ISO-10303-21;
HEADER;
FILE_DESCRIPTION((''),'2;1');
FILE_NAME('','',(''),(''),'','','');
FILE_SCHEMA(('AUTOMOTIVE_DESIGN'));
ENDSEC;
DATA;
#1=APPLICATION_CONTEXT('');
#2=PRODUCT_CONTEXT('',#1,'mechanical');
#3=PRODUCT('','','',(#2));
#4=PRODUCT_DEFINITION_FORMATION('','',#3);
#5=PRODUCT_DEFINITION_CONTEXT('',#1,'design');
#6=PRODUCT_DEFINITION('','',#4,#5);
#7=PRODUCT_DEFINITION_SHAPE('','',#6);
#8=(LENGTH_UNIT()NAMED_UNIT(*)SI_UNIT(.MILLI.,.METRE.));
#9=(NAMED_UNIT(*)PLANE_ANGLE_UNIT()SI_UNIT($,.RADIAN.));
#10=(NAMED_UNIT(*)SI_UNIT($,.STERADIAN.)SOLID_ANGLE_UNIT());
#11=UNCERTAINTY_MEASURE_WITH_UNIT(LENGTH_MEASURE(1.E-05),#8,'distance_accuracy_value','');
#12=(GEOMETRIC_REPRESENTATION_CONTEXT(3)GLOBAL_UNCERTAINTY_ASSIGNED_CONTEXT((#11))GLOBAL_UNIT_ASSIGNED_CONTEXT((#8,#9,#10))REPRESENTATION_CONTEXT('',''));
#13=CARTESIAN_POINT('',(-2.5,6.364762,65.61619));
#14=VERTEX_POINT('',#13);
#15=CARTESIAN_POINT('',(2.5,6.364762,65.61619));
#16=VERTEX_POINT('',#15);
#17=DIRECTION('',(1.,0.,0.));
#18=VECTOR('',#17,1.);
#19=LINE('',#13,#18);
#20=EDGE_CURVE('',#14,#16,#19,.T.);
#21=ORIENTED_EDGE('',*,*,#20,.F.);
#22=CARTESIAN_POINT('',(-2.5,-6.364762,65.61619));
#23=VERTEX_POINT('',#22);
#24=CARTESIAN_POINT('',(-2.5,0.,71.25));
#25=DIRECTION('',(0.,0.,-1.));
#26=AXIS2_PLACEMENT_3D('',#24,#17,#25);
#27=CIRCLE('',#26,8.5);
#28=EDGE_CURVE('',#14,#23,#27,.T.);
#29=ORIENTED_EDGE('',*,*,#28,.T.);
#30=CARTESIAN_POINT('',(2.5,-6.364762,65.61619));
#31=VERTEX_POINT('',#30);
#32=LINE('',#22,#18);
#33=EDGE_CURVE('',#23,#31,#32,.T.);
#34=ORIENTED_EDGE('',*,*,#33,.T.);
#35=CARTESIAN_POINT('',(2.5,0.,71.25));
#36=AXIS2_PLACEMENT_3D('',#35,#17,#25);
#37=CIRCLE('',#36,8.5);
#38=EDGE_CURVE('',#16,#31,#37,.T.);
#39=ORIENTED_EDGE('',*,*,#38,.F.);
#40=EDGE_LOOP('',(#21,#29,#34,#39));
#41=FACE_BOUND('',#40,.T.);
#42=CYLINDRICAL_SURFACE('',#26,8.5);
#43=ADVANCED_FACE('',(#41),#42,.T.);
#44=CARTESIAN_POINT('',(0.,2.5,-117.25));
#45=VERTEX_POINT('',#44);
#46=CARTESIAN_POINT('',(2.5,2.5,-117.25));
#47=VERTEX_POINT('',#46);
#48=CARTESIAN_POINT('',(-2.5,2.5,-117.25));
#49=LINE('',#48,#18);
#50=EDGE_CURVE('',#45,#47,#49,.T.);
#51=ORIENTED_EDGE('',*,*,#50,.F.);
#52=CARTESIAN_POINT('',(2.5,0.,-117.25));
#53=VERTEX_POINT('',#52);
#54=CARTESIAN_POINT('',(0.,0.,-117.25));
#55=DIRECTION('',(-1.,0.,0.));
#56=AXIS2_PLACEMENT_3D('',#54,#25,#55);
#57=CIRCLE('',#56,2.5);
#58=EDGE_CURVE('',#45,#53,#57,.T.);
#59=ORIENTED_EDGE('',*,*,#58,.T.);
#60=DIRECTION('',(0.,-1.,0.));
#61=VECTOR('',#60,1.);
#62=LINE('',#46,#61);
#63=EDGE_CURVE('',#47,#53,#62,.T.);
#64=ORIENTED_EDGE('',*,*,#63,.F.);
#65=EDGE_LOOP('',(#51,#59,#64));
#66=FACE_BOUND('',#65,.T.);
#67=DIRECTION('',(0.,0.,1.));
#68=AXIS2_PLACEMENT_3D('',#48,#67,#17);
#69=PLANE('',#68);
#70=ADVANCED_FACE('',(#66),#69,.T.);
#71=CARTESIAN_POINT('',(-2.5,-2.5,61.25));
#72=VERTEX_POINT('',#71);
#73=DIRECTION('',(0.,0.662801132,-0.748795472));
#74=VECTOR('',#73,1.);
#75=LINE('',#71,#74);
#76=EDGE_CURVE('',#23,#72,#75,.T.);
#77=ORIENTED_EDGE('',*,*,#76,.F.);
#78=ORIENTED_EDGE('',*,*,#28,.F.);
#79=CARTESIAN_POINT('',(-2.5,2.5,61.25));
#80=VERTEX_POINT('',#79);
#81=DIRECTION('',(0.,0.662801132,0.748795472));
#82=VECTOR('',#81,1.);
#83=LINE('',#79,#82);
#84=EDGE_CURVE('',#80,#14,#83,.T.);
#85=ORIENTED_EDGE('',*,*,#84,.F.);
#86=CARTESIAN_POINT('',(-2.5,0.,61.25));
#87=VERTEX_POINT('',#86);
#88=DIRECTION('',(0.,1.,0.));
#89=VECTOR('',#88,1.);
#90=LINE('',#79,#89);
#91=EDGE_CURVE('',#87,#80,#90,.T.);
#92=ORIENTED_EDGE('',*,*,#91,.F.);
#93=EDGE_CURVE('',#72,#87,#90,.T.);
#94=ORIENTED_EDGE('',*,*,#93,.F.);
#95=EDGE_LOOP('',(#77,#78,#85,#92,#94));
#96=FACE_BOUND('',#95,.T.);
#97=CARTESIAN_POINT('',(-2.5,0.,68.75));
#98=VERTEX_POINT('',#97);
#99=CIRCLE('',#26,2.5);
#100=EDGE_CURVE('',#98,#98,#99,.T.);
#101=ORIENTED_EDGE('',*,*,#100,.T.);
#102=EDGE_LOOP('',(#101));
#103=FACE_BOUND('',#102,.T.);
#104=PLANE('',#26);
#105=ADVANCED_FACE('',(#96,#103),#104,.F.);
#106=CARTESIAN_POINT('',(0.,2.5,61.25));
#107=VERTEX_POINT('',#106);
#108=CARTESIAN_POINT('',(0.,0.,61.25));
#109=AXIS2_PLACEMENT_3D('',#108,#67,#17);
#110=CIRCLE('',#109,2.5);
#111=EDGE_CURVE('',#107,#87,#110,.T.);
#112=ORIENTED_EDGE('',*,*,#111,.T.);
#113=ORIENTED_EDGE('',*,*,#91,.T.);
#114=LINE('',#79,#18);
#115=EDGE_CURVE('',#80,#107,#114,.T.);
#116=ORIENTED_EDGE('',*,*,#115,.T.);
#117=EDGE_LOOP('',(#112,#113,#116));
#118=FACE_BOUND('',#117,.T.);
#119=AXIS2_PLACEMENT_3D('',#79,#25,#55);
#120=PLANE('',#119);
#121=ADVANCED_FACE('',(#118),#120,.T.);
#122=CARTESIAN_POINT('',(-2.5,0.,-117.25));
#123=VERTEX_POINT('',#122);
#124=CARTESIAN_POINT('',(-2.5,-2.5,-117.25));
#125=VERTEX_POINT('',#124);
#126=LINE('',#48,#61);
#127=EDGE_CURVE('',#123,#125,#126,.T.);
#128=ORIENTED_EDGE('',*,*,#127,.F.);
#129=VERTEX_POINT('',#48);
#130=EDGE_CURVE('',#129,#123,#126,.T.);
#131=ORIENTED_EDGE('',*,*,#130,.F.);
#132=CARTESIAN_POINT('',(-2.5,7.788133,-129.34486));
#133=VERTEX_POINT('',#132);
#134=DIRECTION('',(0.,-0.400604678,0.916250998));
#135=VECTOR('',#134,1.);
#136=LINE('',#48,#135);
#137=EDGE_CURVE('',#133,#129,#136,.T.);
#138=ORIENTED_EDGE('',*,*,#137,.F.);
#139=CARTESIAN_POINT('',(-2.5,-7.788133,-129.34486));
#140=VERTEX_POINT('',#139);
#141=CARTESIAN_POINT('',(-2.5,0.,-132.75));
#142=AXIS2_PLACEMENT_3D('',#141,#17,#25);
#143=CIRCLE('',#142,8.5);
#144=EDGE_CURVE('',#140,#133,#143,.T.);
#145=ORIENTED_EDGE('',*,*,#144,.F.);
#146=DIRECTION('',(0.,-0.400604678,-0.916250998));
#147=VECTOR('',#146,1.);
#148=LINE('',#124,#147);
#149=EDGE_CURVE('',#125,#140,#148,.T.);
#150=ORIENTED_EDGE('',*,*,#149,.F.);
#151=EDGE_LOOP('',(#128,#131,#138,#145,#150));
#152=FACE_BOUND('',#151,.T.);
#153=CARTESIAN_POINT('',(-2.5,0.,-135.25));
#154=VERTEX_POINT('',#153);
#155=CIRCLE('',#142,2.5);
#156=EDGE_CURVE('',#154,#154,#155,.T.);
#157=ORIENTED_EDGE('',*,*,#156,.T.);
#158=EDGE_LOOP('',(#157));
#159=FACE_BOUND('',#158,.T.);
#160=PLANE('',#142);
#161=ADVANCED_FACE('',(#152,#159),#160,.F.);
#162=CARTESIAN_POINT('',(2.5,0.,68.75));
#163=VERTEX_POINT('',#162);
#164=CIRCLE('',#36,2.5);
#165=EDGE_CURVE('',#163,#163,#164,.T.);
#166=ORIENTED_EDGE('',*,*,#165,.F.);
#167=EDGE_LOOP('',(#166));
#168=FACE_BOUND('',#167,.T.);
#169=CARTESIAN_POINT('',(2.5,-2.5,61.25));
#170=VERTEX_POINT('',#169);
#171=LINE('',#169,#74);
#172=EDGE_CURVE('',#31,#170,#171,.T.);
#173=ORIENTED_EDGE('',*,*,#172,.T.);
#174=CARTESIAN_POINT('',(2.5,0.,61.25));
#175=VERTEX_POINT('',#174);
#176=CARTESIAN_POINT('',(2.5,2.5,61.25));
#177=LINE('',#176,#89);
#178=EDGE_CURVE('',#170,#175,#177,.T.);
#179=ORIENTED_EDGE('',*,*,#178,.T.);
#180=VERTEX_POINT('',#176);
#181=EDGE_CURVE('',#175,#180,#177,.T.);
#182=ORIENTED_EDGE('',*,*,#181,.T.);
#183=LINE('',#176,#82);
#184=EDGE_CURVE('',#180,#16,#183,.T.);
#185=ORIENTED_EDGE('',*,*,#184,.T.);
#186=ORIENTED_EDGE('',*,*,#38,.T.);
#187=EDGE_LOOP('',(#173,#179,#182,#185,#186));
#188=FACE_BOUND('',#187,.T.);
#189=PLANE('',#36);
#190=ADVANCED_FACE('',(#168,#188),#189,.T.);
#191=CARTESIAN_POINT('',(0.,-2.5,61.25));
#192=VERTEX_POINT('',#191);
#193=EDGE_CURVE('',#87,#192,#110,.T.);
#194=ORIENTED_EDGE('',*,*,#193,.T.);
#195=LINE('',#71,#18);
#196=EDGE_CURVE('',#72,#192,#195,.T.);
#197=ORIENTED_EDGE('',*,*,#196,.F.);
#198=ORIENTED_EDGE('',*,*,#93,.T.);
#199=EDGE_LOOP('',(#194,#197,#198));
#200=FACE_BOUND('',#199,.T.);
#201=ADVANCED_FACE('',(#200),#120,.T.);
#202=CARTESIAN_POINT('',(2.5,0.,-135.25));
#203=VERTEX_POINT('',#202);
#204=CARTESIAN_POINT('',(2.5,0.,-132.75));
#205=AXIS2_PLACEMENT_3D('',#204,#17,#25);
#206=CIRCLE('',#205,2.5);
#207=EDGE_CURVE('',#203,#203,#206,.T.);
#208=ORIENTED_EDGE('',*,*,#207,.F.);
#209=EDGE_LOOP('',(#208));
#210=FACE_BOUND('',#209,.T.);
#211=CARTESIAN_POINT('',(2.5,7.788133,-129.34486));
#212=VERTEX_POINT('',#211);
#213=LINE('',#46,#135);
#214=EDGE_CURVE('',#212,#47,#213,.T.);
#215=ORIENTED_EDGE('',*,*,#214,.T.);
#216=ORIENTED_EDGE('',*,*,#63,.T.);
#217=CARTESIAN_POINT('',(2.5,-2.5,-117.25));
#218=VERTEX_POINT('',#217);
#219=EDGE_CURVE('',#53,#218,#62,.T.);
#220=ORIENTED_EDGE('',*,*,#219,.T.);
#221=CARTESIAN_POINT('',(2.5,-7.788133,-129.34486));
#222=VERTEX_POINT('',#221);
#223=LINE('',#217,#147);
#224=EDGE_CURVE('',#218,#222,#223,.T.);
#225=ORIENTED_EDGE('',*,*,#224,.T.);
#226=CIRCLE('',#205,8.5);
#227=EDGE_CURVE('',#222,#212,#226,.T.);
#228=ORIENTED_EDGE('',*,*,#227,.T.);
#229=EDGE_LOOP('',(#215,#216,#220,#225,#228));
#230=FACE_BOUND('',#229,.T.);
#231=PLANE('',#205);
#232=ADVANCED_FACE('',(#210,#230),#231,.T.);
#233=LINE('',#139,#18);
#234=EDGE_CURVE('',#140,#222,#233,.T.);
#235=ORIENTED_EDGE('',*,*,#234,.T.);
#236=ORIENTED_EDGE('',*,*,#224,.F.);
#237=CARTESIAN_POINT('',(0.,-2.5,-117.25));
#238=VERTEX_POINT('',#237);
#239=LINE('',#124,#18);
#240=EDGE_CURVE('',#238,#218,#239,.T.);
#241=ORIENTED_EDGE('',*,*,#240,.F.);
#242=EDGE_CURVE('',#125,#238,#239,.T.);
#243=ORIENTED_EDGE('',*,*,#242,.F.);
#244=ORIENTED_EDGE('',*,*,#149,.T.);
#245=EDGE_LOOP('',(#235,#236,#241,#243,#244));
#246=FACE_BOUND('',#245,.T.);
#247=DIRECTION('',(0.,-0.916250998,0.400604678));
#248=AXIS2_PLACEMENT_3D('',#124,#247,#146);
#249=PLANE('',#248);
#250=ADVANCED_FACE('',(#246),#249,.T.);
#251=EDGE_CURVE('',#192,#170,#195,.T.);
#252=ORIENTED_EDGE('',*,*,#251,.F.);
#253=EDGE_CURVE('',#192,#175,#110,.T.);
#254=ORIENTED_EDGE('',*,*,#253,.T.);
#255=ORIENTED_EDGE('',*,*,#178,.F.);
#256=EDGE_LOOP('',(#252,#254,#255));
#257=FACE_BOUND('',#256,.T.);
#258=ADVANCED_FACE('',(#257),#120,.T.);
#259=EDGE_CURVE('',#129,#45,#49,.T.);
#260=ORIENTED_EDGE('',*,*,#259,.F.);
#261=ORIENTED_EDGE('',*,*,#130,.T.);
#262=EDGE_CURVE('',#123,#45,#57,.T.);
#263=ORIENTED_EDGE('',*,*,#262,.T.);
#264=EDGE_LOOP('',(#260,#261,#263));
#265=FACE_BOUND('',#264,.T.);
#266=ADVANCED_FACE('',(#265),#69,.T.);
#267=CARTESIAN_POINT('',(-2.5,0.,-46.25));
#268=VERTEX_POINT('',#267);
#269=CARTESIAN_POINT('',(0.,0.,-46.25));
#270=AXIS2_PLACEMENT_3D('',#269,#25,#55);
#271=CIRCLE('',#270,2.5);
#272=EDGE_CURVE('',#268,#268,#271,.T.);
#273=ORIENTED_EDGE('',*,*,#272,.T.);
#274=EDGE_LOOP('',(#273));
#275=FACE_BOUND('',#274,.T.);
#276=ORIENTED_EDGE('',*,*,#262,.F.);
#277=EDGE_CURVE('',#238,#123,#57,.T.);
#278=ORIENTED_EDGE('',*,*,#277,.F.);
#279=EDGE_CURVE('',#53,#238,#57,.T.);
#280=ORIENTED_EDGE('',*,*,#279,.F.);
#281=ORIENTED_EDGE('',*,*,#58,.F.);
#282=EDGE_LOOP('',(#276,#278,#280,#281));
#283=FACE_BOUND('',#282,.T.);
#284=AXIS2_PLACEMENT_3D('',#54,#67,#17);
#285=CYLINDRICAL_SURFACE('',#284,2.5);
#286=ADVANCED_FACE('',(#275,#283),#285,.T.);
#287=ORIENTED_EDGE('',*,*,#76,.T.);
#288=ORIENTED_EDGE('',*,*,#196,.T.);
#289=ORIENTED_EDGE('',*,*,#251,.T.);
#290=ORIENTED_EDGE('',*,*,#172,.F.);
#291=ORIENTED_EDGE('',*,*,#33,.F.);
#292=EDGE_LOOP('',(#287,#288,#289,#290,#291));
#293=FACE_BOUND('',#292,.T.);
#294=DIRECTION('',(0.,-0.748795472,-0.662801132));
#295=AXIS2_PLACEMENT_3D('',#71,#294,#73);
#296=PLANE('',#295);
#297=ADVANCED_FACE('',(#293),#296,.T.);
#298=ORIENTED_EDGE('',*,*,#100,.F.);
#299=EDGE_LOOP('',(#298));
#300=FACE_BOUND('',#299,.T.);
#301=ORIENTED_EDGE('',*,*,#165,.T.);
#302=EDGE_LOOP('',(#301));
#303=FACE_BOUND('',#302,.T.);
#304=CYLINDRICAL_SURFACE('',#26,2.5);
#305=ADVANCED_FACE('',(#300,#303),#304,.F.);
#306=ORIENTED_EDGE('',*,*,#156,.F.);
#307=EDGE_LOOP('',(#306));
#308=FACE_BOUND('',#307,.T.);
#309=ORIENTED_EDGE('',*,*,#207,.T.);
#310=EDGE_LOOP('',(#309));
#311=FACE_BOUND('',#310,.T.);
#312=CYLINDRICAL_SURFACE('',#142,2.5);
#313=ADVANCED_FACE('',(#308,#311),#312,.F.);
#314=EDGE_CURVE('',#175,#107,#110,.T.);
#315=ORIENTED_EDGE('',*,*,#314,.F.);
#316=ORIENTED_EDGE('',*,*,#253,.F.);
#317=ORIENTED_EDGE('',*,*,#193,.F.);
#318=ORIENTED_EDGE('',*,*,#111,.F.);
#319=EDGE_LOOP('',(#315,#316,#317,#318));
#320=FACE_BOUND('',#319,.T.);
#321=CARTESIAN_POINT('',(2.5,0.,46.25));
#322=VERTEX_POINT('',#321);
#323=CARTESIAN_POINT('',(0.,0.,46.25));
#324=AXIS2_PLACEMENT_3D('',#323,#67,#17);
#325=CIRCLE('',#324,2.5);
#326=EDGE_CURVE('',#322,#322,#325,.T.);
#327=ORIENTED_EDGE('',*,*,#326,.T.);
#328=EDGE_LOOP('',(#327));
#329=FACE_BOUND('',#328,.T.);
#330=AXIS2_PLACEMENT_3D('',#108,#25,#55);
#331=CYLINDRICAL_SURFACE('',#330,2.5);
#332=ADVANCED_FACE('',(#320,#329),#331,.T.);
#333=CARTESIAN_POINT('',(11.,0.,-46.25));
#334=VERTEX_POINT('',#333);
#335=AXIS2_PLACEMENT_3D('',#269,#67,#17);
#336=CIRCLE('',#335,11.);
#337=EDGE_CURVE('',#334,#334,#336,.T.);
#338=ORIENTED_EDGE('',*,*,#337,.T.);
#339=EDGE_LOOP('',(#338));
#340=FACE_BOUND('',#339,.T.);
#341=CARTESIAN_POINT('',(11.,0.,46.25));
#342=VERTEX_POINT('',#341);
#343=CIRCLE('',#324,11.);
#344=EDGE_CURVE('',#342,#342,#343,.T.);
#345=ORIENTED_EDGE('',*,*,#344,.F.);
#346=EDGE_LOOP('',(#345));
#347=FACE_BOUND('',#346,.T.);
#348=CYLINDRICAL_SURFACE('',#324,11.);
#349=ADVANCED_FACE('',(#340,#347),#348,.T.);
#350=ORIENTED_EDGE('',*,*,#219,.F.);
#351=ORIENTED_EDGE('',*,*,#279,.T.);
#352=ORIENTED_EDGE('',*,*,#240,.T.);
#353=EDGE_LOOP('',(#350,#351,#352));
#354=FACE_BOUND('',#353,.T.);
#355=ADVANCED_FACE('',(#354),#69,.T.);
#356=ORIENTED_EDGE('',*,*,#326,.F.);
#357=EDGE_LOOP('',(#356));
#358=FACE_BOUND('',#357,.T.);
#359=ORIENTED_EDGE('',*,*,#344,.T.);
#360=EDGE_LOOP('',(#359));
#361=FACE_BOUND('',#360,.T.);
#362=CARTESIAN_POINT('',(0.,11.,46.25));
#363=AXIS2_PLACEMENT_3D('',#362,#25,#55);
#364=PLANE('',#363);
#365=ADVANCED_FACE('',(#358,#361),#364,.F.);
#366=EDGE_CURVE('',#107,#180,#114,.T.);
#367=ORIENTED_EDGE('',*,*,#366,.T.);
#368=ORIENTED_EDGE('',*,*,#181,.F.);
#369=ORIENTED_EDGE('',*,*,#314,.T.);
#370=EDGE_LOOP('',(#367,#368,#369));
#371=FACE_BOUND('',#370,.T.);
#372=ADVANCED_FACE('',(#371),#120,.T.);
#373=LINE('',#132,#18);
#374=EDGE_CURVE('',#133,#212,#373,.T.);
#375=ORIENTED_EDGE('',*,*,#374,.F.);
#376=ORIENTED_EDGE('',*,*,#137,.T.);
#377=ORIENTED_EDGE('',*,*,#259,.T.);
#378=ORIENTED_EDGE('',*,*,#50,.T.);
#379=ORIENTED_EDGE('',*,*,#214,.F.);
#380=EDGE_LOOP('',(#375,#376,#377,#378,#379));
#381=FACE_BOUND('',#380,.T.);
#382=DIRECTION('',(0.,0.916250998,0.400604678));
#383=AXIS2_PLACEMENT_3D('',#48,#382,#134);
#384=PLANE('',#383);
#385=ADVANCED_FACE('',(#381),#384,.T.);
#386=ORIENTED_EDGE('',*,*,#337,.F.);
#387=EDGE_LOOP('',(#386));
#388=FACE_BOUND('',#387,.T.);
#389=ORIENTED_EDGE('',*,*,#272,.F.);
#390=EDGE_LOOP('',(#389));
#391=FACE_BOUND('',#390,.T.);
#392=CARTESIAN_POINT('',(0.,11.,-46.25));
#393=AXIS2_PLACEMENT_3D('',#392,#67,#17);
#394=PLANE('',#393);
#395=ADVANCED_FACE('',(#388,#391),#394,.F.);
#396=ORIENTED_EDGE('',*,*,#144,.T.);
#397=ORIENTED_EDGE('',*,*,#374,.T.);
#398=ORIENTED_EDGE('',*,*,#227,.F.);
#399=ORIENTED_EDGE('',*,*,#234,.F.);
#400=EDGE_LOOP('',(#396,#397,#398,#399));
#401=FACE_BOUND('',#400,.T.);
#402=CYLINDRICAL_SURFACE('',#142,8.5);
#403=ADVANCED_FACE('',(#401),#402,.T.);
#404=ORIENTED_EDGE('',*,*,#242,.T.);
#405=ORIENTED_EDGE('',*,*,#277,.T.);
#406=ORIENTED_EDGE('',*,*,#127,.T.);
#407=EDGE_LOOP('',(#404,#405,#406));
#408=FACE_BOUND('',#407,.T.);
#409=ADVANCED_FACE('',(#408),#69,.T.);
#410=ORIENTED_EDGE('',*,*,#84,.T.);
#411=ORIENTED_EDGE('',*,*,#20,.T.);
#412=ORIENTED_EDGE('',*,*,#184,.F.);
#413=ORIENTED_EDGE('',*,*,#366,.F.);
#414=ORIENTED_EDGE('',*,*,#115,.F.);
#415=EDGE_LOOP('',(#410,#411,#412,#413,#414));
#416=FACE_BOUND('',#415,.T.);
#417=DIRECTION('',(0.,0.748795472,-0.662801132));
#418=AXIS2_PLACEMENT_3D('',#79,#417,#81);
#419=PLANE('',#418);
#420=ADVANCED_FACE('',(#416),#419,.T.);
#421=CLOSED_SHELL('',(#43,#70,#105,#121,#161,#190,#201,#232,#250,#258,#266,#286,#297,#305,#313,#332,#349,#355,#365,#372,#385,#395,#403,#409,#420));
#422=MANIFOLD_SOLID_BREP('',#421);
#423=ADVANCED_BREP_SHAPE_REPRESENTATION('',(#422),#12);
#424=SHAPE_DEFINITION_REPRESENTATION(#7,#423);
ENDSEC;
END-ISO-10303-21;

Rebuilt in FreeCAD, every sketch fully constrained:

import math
import FreeCAD as App
import Part
import Sketcher

doc = App.newDocument("Part")
body = doc.addObject("PartDesign::Body", "Body")

# Sketch on YZ plane
sketch1 = doc.addObject("Sketcher::SketchObject", "Sketch")
body.addObject(sketch1)
sketch1.AttachmentSupport = (doc.YZ_Plane, [""])
sketch1.MapMode = "FlatFace"
sketch1.addGeometry([
    Part.LineSegment(App.Vector(11, 46, 0), App.Vector(0, 46, 0)),
    Part.LineSegment(App.Vector(0, 46, 0), App.Vector(0, -46, 0)),
    Part.LineSegment(App.Vector(0, -46, 0), App.Vector(11, -46, 0)),
    Part.LineSegment(App.Vector(11, -46, 0), App.Vector(11, 46, 0)),
], False)
sketch1.addConstraint([
    Sketcher.Constraint("Coincident", 0, 2, 1, 1),
    Sketcher.Constraint("Coincident", 1, 2, 2, 1),
    Sketcher.Constraint("Coincident", 2, 2, 3, 1),
    Sketcher.Constraint("Coincident", 3, 2, 0, 1),
    Sketcher.Constraint("Horizontal", 0),
    Sketcher.Constraint("Vertical", 1),
    Sketcher.Constraint("Horizontal", 2),
    Sketcher.Constraint("Vertical", 3),
    Sketcher.Constraint("Symmetric", 0, 2, 1, 2, -1, 1),
    Sketcher.Constraint("DistanceX", 0, 2, 0, 1, 11.0),
    Sketcher.Constraint("DistanceY", 1, 2, 1, 1, 92.5),
])
revolution = doc.addObject("PartDesign::Revolution", "Revolution")
body.addObject(revolution)
revolution.Profile = sketch1
revolution.ReferenceAxis = (sketch1, ["V_Axis"])
revolution.Angle = 360

# Sketch on XY plane
sketch2 = doc.addObject("Sketcher::SketchObject", "Sketch001")
body.addObject(sketch2)
sketch2.AttachmentSupport = (doc.XY_Plane, [""])
sketch2.MapMode = "FlatFace"
sketch2.AttachmentOffset = App.Placement(App.Vector(0, 0, 46.25), App.Rotation())
sketch2.addGeometry(Part.Circle(App.Vector(0, 0, 0), App.Vector(0, 0, 1), 2.5), False)
sketch2.addConstraint([
    Sketcher.Constraint("Coincident", 0, 3, -1, 1),
    Sketcher.Constraint("Diameter", 0, 5.0),
])
pad1 = doc.addObject("PartDesign::Pad", "Pad")
body.addObject(pad1)
pad1.Profile = sketch2
pad1.Length = 15

# Sketch on YZ plane
sketch3 = doc.addObject("Sketcher::SketchObject", "Sketch002")
body.addObject(sketch3)
sketch3.AttachmentSupport = (doc.YZ_Plane, [""])
sketch3.MapMode = "FlatFace"
sketch3.addGeometry([
    Part.LineSegment(App.Vector(2.5, 61.2, 0), App.Vector(6.4, 65.6, 0)),  # 0
    Part.ArcOfCircle(Part.Circle(App.Vector(0, 71.2, 0), App.Vector(0, 0, 1), 8.5), math.radians(-42), math.radians(222)),  # 1
    Part.LineSegment(App.Vector(-6.4, 65.6, 0), App.Vector(-2.5, 61.2, 0)),  # 2
    Part.LineSegment(App.Vector(-2.5, 61.2, 0), App.Vector(2.5, 61.2, 0)),  # 3
    Part.Circle(App.Vector(0, 71.2, 0), App.Vector(0, 0, 1), 2.5),  # 4
], False)
sketch3.addConstraint([
    Sketcher.Constraint("Tangent", 0, 2, 1, 1),
    Sketcher.Constraint("Tangent", 1, 2, 2, 1),
    Sketcher.Constraint("Coincident", 2, 2, 3, 1),
    Sketcher.Constraint("Coincident", 3, 2, 0, 1),
    Sketcher.Constraint("Horizontal", 3),
    Sketcher.Constraint("Coincident", 4, 3, 1, 3),
    Sketcher.Constraint("Symmetric", 0, 2, 1, 2, -2),
    Sketcher.Constraint("Diameter", 4, 5.0),
    Sketcher.Constraint("Radius", 1, 8.5),
    Sketcher.Constraint("DistanceX", 3, 1, 3, 2, 5.0),
    Sketcher.Constraint("DistanceY", 2, 2, 1, 3, 10.0),
    Sketcher.Constraint("DistanceY", -1, 1, 1, 3, 71.25),
])
pad2 = doc.addObject("PartDesign::Pad", "Pad001")
body.addObject(pad2)
pad2.Profile = sketch3
pad2.Type = "TwoLengths"
pad2.Length = 2.5
pad2.Length2 = 2.5

# Sketch on XY plane
sketch4 = doc.addObject("Sketcher::SketchObject", "Sketch003")
body.addObject(sketch4)
sketch4.AttachmentSupport = (doc.XY_Plane, [""])
sketch4.MapMode = "FlatFace"
sketch4.AttachmentOffset = App.Placement(App.Vector(0, 0, -117.25), App.Rotation())
sketch4.addGeometry(Part.Circle(App.Vector(0, 0, 0), App.Vector(0, 0, 1), 2.5), False)
sketch4.addConstraint([
    Sketcher.Constraint("Coincident", 0, 3, -1, 1),
    Sketcher.Constraint("Diameter", 0, 5.0),
])
pad3 = doc.addObject("PartDesign::Pad", "Pad002")
body.addObject(pad3)
pad3.Profile = sketch4
pad3.Length = 71

# Sketch on YZ plane
sketch5 = doc.addObject("Sketcher::SketchObject", "Sketch004")
body.addObject(sketch5)
sketch5.AttachmentSupport = (doc.YZ_Plane, [""])
sketch5.MapMode = "FlatFace"
sketch5.addGeometry([
    Part.LineSegment(App.Vector(7.8, -129.3, 0), App.Vector(2.5, -117.2, 0)),  # 0
    Part.LineSegment(App.Vector(2.5, -117.2, 0), App.Vector(-2.5, -117.2, 0)),  # 1
    Part.LineSegment(App.Vector(-2.5, -117.2, 0), App.Vector(-7.8, -129.3, 0)),  # 2
    Part.ArcOfCircle(Part.Circle(App.Vector(0, -132.8, 0), App.Vector(0, 0, 1), 8.5), math.radians(156), math.radians(384)),  # 3
    Part.Circle(App.Vector(0, -132.8, 0), App.Vector(0, 0, 1), 2.5),  # 4
], False)
sketch5.addConstraint([
    Sketcher.Constraint("Coincident", 0, 2, 1, 1),
    Sketcher.Constraint("Coincident", 1, 2, 2, 1),
    Sketcher.Constraint("Tangent", 2, 2, 3, 1),
    Sketcher.Constraint("Tangent", 3, 2, 0, 1),
    Sketcher.Constraint("Horizontal", 1),
    Sketcher.Constraint("Coincident", 4, 3, 3, 3),
    Sketcher.Constraint("Symmetric", 2, 2, 3, 2, -2),
    Sketcher.Constraint("Diameter", 4, 5.0),
    Sketcher.Constraint("Radius", 3, 8.5),
    Sketcher.Constraint("DistanceX", 1, 2, 1, 1, 5.0),
    Sketcher.Constraint("DistanceY", 3, 3, 0, 2, 15.5),
    Sketcher.Constraint("DistanceY", 3, 3, -1, 1, 132.75),
])
pad4 = doc.addObject("PartDesign::Pad", "Pad003")
body.addObject(pad4)
pad4.Profile = sketch5
pad4.Type = "TwoLengths"
pad4.Length = 2.5
pad4.Length2 = 2.5

doc.recompute()
